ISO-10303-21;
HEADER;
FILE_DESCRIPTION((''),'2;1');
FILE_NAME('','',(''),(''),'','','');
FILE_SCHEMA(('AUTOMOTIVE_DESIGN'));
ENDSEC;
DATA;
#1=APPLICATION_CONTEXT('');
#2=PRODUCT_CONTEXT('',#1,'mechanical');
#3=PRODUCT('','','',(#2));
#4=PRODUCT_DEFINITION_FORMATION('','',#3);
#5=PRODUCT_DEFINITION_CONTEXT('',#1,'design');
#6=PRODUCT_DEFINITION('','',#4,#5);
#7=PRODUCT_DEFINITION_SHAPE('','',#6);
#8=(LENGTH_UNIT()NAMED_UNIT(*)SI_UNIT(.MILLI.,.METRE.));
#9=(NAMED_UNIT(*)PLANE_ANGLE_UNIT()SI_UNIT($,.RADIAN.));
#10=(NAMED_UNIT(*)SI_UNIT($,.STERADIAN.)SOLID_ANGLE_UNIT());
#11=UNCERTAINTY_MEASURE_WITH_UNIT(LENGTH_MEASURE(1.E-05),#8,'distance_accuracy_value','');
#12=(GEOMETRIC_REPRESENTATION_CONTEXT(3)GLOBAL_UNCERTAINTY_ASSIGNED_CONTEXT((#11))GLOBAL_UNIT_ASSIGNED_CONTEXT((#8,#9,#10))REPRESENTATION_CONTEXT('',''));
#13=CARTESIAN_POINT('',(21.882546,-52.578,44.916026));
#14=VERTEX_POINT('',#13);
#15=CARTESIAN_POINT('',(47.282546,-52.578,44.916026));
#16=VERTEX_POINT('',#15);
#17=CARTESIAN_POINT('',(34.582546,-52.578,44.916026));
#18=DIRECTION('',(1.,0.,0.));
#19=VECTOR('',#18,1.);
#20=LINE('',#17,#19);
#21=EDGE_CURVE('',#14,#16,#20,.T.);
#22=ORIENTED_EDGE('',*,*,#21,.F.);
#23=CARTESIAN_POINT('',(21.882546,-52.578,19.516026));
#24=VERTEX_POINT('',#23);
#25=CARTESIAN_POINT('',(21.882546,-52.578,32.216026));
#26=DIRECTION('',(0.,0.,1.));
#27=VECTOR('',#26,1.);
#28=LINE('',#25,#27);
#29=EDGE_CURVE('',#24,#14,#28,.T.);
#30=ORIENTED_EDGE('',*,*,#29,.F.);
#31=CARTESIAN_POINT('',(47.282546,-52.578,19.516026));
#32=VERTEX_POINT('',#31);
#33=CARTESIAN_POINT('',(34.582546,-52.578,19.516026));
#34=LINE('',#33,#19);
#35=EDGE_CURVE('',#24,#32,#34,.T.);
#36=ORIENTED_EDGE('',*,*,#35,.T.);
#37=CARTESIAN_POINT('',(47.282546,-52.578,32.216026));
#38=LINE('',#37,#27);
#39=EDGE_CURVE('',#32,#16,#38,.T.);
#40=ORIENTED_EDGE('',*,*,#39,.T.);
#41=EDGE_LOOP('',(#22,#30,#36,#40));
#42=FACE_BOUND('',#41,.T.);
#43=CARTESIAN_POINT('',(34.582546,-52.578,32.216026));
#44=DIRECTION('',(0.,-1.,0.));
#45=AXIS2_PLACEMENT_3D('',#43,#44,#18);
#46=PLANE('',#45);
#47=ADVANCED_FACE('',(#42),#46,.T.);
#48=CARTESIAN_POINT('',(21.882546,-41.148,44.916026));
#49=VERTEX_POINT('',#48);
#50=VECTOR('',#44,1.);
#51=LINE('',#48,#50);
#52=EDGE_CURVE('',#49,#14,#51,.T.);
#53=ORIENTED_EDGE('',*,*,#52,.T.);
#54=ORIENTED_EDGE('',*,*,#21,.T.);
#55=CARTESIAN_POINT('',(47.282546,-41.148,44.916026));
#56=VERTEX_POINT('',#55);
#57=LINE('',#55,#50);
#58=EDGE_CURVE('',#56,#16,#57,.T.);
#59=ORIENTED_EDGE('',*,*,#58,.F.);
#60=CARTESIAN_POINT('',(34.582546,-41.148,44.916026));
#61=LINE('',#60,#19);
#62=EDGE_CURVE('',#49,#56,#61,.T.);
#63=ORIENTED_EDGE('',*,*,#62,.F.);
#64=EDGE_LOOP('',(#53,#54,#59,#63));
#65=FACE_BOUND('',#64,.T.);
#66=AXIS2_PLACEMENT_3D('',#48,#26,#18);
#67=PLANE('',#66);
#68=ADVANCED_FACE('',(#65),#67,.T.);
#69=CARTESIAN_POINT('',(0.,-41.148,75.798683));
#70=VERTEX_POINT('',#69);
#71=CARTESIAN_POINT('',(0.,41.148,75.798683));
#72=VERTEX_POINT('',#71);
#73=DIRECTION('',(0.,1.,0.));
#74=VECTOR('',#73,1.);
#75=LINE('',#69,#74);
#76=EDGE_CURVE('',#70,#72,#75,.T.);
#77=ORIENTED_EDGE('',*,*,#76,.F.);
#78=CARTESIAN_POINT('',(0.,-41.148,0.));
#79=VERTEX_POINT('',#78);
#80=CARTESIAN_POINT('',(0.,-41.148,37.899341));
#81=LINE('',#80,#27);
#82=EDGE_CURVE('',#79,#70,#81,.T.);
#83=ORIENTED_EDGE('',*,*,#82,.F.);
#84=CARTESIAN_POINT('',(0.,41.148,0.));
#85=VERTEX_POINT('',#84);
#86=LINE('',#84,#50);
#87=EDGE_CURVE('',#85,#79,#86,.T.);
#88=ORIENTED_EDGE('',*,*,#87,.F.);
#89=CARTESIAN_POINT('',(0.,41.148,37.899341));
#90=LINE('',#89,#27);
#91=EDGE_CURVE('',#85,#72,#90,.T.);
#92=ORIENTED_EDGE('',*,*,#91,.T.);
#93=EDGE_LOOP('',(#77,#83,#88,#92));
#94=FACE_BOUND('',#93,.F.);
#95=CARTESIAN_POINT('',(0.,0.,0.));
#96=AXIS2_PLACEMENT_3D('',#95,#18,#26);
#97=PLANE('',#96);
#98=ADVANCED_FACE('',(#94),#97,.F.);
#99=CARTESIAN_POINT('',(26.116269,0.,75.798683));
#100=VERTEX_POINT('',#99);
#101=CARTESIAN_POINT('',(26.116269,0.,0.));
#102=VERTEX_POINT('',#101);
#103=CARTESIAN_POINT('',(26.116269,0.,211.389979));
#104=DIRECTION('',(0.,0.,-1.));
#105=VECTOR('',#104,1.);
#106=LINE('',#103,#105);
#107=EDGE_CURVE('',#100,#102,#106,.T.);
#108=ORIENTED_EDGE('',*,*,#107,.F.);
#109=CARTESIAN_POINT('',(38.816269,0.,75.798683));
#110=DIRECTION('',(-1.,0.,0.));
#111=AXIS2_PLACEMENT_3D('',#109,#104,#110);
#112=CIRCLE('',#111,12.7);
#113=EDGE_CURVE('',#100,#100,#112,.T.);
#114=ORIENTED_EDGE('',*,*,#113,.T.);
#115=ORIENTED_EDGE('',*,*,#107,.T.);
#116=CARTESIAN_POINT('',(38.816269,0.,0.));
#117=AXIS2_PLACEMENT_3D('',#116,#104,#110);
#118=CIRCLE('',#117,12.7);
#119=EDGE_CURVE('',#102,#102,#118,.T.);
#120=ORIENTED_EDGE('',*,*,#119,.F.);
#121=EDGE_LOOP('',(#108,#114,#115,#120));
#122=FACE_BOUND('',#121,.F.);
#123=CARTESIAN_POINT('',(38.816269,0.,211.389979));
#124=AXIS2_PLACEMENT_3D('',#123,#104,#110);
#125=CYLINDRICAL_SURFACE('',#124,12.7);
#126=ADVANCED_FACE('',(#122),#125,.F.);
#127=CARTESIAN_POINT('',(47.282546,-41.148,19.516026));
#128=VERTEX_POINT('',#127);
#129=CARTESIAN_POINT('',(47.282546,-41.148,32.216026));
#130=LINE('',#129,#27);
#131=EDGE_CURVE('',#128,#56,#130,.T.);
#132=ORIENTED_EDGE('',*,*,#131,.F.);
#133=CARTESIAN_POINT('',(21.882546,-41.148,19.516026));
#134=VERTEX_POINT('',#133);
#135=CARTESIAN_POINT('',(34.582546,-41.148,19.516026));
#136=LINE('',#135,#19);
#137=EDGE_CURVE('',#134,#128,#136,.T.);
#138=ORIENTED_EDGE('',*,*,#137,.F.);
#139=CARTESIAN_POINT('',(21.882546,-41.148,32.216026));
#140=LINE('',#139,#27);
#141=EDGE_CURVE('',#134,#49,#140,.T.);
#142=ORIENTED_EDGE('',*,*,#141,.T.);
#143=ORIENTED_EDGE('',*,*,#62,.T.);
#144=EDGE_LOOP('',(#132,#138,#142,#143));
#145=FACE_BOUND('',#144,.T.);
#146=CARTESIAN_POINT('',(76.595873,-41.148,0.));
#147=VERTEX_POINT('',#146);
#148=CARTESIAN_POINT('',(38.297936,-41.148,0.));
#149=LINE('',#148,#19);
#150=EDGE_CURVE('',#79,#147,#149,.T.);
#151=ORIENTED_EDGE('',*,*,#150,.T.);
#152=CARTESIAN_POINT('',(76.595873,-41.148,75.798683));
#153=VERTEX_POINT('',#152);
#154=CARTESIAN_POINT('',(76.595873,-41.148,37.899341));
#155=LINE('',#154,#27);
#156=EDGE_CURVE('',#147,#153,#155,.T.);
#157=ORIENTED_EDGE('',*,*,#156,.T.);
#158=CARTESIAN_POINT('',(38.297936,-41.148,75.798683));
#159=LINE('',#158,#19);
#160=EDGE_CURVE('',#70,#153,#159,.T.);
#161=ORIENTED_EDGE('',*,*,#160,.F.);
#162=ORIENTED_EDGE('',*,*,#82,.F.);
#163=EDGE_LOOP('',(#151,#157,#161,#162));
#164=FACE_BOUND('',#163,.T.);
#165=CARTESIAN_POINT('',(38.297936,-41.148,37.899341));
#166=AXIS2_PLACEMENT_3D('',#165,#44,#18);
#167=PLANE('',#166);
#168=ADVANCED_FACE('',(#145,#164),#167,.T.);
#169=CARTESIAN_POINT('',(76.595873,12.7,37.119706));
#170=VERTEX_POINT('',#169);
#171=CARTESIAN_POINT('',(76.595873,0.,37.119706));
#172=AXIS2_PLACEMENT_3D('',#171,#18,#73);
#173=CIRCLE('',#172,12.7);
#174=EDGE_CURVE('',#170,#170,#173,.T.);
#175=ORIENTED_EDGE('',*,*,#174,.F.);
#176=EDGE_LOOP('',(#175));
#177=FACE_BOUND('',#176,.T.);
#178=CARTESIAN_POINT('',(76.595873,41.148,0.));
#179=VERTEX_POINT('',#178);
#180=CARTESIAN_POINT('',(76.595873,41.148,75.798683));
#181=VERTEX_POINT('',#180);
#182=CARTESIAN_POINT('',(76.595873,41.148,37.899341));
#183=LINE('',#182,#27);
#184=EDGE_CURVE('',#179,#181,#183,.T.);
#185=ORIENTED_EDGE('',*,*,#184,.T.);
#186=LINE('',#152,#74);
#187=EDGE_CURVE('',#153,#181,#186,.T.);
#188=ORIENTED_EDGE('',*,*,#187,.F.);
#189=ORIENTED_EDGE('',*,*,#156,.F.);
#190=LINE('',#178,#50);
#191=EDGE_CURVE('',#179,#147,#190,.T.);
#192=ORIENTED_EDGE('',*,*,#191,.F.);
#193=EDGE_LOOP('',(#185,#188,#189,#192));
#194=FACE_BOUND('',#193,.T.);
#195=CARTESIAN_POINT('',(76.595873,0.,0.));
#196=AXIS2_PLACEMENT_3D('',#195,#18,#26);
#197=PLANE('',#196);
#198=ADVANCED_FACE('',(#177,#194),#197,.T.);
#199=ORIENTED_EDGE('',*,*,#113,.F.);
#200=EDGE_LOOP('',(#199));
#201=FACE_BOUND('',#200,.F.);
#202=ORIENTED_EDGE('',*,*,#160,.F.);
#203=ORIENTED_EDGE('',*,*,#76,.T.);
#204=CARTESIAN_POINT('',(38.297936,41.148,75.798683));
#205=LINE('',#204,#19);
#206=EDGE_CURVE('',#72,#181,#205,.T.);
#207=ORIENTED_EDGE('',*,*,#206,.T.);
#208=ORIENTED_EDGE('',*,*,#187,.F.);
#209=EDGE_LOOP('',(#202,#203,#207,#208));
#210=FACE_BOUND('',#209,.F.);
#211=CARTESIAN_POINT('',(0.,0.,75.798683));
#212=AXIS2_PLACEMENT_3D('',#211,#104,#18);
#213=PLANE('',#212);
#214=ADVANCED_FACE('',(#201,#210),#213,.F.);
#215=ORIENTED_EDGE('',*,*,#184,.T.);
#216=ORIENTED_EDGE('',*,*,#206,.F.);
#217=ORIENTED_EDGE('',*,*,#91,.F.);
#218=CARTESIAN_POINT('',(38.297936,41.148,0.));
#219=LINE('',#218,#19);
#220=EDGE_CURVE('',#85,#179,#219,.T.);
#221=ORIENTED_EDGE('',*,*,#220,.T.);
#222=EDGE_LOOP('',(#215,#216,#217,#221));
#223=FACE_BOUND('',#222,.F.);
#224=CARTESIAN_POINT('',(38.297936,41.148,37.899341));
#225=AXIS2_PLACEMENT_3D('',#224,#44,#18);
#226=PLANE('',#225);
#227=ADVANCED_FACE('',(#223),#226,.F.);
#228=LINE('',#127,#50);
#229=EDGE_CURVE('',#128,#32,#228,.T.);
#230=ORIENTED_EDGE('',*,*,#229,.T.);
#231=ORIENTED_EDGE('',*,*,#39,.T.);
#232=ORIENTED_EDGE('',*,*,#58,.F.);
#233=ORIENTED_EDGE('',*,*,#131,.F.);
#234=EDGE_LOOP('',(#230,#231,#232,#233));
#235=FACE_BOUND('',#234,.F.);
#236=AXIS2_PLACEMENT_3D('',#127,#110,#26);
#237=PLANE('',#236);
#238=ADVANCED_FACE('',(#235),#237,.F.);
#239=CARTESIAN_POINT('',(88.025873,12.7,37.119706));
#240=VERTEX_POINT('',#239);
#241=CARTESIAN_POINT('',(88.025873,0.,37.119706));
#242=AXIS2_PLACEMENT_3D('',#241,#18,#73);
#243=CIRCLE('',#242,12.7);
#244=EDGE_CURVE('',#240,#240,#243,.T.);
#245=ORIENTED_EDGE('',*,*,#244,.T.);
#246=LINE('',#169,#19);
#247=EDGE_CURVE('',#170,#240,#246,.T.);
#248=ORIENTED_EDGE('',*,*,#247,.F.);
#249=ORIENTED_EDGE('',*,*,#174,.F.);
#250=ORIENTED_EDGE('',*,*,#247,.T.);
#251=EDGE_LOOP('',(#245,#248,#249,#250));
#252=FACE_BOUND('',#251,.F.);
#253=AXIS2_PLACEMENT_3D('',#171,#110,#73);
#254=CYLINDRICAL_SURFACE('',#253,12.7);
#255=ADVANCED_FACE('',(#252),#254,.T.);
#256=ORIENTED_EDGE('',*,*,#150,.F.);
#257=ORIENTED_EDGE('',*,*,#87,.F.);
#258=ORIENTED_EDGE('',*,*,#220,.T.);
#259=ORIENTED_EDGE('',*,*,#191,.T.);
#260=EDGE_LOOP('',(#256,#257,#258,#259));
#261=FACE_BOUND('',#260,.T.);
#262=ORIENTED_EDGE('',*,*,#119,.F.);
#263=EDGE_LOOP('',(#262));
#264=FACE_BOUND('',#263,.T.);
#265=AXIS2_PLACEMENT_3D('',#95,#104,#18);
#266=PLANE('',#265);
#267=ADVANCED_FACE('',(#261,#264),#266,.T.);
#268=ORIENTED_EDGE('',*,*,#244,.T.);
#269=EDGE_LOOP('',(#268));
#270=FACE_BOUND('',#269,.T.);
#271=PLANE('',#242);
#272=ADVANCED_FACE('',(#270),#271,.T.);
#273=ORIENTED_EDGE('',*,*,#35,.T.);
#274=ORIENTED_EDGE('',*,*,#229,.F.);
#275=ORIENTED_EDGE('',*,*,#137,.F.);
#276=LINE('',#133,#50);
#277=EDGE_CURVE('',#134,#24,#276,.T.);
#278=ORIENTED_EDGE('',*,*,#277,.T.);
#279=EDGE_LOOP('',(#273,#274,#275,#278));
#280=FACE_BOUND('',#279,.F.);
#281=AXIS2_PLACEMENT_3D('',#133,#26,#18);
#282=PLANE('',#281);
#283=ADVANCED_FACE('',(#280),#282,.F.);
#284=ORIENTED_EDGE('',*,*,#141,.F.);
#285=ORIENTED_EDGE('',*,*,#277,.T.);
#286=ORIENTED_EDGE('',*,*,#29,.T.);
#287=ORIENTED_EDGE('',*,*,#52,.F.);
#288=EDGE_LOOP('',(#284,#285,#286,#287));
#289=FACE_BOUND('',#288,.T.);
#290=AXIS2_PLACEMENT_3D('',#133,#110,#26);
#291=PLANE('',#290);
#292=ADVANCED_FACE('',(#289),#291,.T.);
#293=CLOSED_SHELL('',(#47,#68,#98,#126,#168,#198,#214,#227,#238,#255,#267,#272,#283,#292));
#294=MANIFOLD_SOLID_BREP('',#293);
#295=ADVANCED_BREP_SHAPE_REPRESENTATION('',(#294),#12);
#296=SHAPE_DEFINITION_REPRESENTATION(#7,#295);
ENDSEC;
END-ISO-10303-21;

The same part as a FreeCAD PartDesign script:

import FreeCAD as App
import Part
import Sketcher
Q = App.Units.Quantity


def add_polygon(sketch, points):
    """Adds a closed chain of lines whose ends are joined by coincident constraints."""
    first, n = sketch.GeometryCount, len(points)
    for a, b in zip(points, points[1:] + points[:1]):
        sketch.addGeometry(Part.LineSegment(App.Vector(*a, 0), App.Vector(*b, 0)), False)
    for i in range(n):
        sketch.addConstraint(Sketcher.Constraint("Coincident", first + i, 2, first + (i + 1) % n, 1))

doc = App.newDocument("Part")
body = doc.addObject("PartDesign::Body", "Body")

# Sketch on XZ plane
sketch1 = body.newObject("Sketcher::SketchObject", "Sketch")
sketch1.AttachmentSupport = (doc.getObject("XZ_Plane"), [""])
sketch1.MapMode = "FlatFace"
add_polygon(sketch1, [(0, 76), (0, 0), (77, 0), (77, 76)])  # lines 0-3
sketch1.addConstraint([
    Sketcher.Constraint("Vertical", 0),
    Sketcher.Constraint("Horizontal", 1),
    Sketcher.Constraint("Vertical", 2),
    Sketcher.Constraint("Horizontal", 3),
    Sketcher.Constraint("Coincident", 0, 2, -1, 1),
    Sketcher.Constraint("DistanceY", 0, 2, 0, 1, Q("2.9842001 in")),
    Sketcher.Constraint("DistanceX", 1, 1, 1, 2, 76.595873),
])
pad1 = body.newObject("PartDesign::Pad", "Pad")
pad1.Profile = sketch1
pad1.Length = Q("3.24 in")
pad1.Midplane = True

# Sketch on XY plane
sketch2 = body.newObject("Sketcher::SketchObject", "Sketch001")
sketch2.AttachmentSupport = (doc.getObject("XY_Plane"), [""])
sketch2.MapMode = "FlatFace"
sketch2.AttachmentOffset = App.Placement(App.Vector(0, 0, 2.9842001 * 25.4), App.Rotation())
sketch2.addGeometry(Part.Circle(App.Vector(39, 0, 0), App.Vector(0, 0, 1), 13), False)
sketch2.addConstraint([
    Sketcher.Constraint("PointOnObject", 0, 3, -1),
    Sketcher.Constraint("Diameter", 0, Q("1 in")),
    Sketcher.Constraint("DistanceX", -1, 1, 0, 3, 38.816269),
])
doc.recompute()
hole = body.newObject("PartDesign::Hole", "Hole")
hole.Profile = sketch2
hole.ThreadType = "None"
hole.Diameter = Q("1 in")
hole.DepthType = "ThroughAll"

# Sketch on XZ plane
sketch3 = body.newObject("Sketcher::SketchObject", "Sketch002")
sketch3.AttachmentSupport = (doc.getObject("XZ_Plane"), [""])
sketch3.MapMode = "FlatFace"
sketch3.AttachmentOffset = App.Placement(App.Vector(0, 0, 1.62 * 25.4), App.Rotation())
add_polygon(sketch3, [(22, 45), (22, 20), (47, 20), (47, 45)])  # lines 0-3
sketch3.addConstraint([
    Sketcher.Constraint("Vertical", 0),
    Sketcher.Constraint("Horizontal", 1),
    Sketcher.Constraint("Vertical", 2),
    Sketcher.Constraint("Horizontal", 3),
    Sketcher.Constraint("Equal", 3, 0),
    Sketcher.Constraint("DistanceX", 1, 1, 1, 2, Q("1 in")),
    Sketcher.Constraint("DistanceX", -1, 1, 0, 2, 21.882546),
    Sketcher.Constraint("DistanceY", -1, 1, 0, 2, 19.516026),
])
pad2 = body.newObject("PartDesign::Pad", "Pad001")
pad2.Profile = sketch3
pad2.Length = Q("0.45 in")

# Sketch on YZ plane
sketch4 = body.newObject("Sketcher::SketchObject", "Sketch003")
sketch4.AttachmentSupport = (doc.getObject("YZ_Plane"), [""])
sketch4.MapMode = "FlatFace"
sketch4.AttachmentOffset = App.Placement(App.Vector(0, 0, 76.595873), App.Rotation())
sketch4.addGeometry(Part.Circle(App.Vector(0, 37, 0), App.Vector(0, 0, 1), 13), False)
sketch4.addConstraint([
    Sketcher.Constraint("PointOnObject", 0, 3, -2),
    Sketcher.Constraint("Diameter", 0, Q("1 in")),
    Sketcher.Constraint("DistanceY", -1, 1, 0, 3, 37.119706),
])
pad3 = body.newObject("PartDesign::Pad", "Pad002")
pad3.Profile = sketch4
pad3.Length = Q("0.45 in")

doc.recompute()
